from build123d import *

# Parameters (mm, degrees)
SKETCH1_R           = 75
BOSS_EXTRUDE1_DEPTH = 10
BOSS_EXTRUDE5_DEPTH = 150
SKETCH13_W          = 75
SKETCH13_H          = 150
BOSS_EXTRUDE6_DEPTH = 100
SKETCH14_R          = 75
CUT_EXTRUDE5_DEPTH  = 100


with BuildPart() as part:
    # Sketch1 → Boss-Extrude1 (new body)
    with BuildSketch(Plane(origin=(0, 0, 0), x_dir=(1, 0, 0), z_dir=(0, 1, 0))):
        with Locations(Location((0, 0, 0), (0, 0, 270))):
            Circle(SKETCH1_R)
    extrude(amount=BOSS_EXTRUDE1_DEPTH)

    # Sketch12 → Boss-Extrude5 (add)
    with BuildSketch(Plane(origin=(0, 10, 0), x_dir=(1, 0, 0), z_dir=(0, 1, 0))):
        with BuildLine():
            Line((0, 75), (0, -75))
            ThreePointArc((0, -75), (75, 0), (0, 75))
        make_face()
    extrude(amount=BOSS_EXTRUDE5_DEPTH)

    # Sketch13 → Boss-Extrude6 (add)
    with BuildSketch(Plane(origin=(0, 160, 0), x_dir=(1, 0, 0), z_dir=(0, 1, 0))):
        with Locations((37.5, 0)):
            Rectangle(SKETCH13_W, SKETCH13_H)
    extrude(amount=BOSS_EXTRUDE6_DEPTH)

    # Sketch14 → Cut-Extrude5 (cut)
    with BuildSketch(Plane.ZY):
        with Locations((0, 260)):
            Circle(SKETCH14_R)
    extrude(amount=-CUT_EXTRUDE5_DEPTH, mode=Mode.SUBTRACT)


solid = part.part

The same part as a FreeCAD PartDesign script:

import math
import FreeCAD as App
import Part
import Sketcher


def add_polygon(sketch, points):
    """Adds a closed chain of lines whose ends are joined by coincident constraints."""
    first, n = sketch.GeometryCount, len(points)
    for a, b in zip(points, points[1:] + points[:1]):
        sketch.addGeometry(Part.LineSegment(App.Vector(*a, 0), App.Vector(*b, 0)), False)
    for i in range(n):
        sketch.addConstraint(Sketcher.Constraint("Coincident", first + i, 2, first + (i + 1) % n, 1))

doc = App.newDocument("Part")
body = doc.addObject("PartDesign::Body", "Body")

sketch1 = doc.addObject("Sketcher::SketchObject", "Sketch")
body.addObject(sketch1)
sketch1.AttachmentSupport = (doc.XZ_Plane, [""])
sketch1.MapMode = "FlatFace"
sketch1.addGeometry(Part.Circle(App.Vector(0, 0, 0), App.Vector(0, 0, 1), 75), False)
sketch1.addConstraint(Sketcher.Constraint("Coincident", 0, 3, -1, 1))
sketch1.addConstraint(Sketcher.Constraint("Diameter", 0, 150.0))
pad1 = doc.addObject("PartDesign::Pad", "Pad")
body.addObject(pad1)
pad1.Profile = sketch1
pad1.Length = 10
pad1.Reversed = True

sketch2 = doc.addObject("Sketcher::SketchObject", "Sketch001")
body.addObject(sketch2)
sketch2.AttachmentSupport = (doc.XZ_Plane, [""])
sketch2.MapMode = "FlatFace"
sketch2.AttachmentOffset = App.Placement(App.Vector(0, 0, -10), App.Rotation())
sketch2.addGeometry(Part.LineSegment(App.Vector(0, -75, 0), App.Vector(0, 75, 0)), False)
sketch2.addGeometry(Part.ArcOfCircle(Part.Circle(App.Vector(0, 0, 0), App.Vector(0, 0, 1), 75), math.radians(-90), math.radians(90)), False)
sketch2.addConstraint(Sketcher.Constraint("Coincident", 0, 1, 1, 1))
sketch2.addConstraint(Sketcher.Constraint("Coincident", 1, 2, 0, 2))
sketch2.addConstraint(Sketcher.Constraint("Vertical", 0))
sketch2.addConstraint(Sketcher.Constraint("Coincident", 1, 3, -1, 1))
sketch2.addConstraint(Sketcher.Constraint("PointOnObject", 0, 1, -2))
sketch2.addConstraint(Sketcher.Constraint("Radius", 1, 75.0))
pad2 = doc.addObject("PartDesign::Pad", "Pad001")
body.addObject(pad2)
pad2.Profile = sketch2
pad2.Length = 150
pad2.Reversed = True

sketch3 = doc.addObject("Sketcher::SketchObject", "Sketch002")
body.addObject(sketch3)
sketch3.AttachmentSupport = (doc.XZ_Plane, [""])
sketch3.MapMode = "FlatFace"
sketch3.AttachmentOffset = App.Placement(App.Vector(0, 0, -160), App.Rotation())
add_polygon(sketch3, [(0, -75), (0, 75), (75, 75), (75, -75)])
sketch3.addConstraint(Sketcher.Constraint("Vertical", 0))
sketch3.addConstraint(Sketcher.Constraint("Horizontal", 1))
sketch3.addConstraint(Sketcher.Constraint("Vertical", 2))
sketch3.addConstraint(Sketcher.Constraint("Horizontal", 3))
sketch3.addConstraint(Sketcher.Constraint("Symmetric", 0, 2, 3, 2, -1, 1))
sketch3.addConstraint(Sketcher.Constraint("DistanceX", 1, 1, 1, 2, 75.0))
sketch3.addConstraint(Sketcher.Constraint("DistanceY", 0, 1, 0, 2, 150.0))
pad3 = doc.addObject("PartDesign::Pad", "Pad002")
body.addObject(pad3)
pad3.Profile = sketch3
pad3.Length = 100
pad3.Reversed = True

sketch4 = doc.addObject("Sketcher::SketchObject", "Sketch003")
body.addObject(sketch4)
sketch4.AttachmentSupport = (doc.YZ_Plane, [""])
sketch4.MapMode = "FlatFace"
sketch4.addGeometry(Part.Circle(App.Vector(260, 0, 0), App.Vector(0, 0, 1), 75), False)
sketch4.addConstraint(Sketcher.Constraint("PointOnObject", 0, 3, -1))
sketch4.addConstraint(Sketcher.Constraint("Diameter", 0, 150.0))
sketch4.addConstraint(Sketcher.Constraint("DistanceX", -1, 1, 0, 3, 260.0))
pocket1 = doc.addObject("PartDesign::Pocket", "Pocket")
body.addObject(pocket1)
pocket1.Profile = sketch4
pocket1.Length = 100
pocket1.Reversed = True

doc.recompute()
